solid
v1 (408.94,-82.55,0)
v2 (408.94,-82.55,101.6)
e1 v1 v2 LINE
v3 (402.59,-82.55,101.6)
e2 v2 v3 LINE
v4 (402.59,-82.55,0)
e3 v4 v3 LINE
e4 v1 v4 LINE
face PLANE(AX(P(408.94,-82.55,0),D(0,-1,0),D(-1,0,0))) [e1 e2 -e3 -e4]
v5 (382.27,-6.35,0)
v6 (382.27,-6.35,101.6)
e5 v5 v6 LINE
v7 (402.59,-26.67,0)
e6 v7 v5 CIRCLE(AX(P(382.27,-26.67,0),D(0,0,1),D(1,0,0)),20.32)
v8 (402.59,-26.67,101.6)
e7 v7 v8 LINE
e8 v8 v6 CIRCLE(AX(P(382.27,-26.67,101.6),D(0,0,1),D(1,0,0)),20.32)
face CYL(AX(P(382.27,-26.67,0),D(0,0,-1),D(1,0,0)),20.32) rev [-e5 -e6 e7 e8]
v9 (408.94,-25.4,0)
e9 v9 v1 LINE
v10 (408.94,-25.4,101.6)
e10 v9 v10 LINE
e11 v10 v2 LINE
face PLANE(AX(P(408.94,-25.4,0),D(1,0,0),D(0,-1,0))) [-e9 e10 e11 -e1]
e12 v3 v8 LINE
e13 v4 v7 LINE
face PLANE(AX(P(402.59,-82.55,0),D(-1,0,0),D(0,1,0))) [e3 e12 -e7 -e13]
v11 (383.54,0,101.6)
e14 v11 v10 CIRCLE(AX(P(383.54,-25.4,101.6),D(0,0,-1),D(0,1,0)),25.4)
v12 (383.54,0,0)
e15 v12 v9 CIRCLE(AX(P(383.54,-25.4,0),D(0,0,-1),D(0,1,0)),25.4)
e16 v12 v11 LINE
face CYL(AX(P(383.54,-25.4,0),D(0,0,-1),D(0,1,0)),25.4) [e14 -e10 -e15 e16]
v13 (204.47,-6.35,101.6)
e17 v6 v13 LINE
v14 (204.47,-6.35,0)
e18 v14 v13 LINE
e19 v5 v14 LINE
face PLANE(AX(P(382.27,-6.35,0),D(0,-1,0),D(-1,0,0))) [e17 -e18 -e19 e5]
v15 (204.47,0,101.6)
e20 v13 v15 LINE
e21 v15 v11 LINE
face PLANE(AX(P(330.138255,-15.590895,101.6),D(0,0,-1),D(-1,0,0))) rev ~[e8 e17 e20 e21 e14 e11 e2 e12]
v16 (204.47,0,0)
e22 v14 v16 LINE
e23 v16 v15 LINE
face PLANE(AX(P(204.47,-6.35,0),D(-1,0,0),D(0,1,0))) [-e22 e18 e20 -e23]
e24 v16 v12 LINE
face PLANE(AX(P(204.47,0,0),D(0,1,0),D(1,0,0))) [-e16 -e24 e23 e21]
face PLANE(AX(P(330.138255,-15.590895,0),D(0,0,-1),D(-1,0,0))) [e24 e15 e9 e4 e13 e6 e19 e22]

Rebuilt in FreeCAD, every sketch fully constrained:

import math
import FreeCAD as App
import Part
import Sketcher
from FreeCAD import Vector
Q = App.Units.Quantity

doc = App.newDocument("Part")
body = doc.addObject("PartDesign::Body", "Body")

sketch1 = doc.addObject("Sketcher::SketchObject", "Sketch")
body.addObject(sketch1)
sketch1.AttachmentSupport = (doc.XY_Plane, [""])
sketch1.MapMode = "FlatFace"
sketch1.addGeometry([
    Part.LineSegment(Vector(383.54, 0, 0), Vector(204.47, 0, 0)),
    Part.LineSegment(Vector(204.47, 0, 0), Vector(204.47, -6.35, 0)),
    Part.LineSegment(Vector(204.47, -6.35, 0), Vector(382.27, -6.35, 0)),
    Part.ArcOfCircle(Part.Circle(Vector(382.27, -26.67, 0), Vector(0, 0, 1), 20.32), math.radians(0), math.radians(90)),
    Part.LineSegment(Vector(402.59, -26.67, 0), Vector(402.59, -82.55, 0)),
    Part.LineSegment(Vector(402.59, -82.55, 0), Vector(408.94, -82.55, 0)),
    Part.LineSegment(Vector(408.94, -82.55, 0), Vector(408.94, -25.4, 0)),
    Part.ArcOfCircle(Part.Circle(Vector(383.54, -25.4, 0), Vector(0, 0, 1), 25.4), math.radians(0), math.radians(90)),
], False)
sketch1.addConstraint([
    Sketcher.Constraint("Coincident", 0, 2, 1, 1),
    Sketcher.Constraint("Coincident", 1, 2, 2, 1),
    Sketcher.Constraint("Tangent", 2, 2, 3, 2),
    Sketcher.Constraint("Tangent", 3, 1, 4, 1),
    Sketcher.Constraint("Coincident", 4, 2, 5, 1),
    Sketcher.Constraint("Coincident", 5, 2, 6, 1),
    Sketcher.Constraint("Tangent", 6, 2, 7, 1),
    Sketcher.Constraint("Tangent", 7, 2, 0, 1),
    Sketcher.Constraint("Horizontal", 0),
    Sketcher.Constraint("Vertical", 1),
    Sketcher.Constraint("Horizontal", 2),
    Sketcher.Constraint("Vertical", 4),
    Sketcher.Constraint("Horizontal", 5),
    Sketcher.Constraint("Vertical", 6),
    Sketcher.Constraint("PointOnObject", 0, 2, -1),
    Sketcher.Constraint("Equal", 5, 1),
    Sketcher.Constraint("Radius", 7, Q("1 in")),
    Sketcher.Constraint("Radius", 3, Q("0.8 in")),
    Sketcher.Constraint("DistanceX", 2, 1, 2, 2, Q("7 in")),
    Sketcher.Constraint("DistanceY", 4, 2, 4, 1, Q("2.2 in")),
    Sketcher.Constraint("DistanceX", 0, 2, 0, 1, Q("7.05 in")),
    Sketcher.Constraint("DistanceX", -1, 1, 7, 3, Q("15.1 in")),
])
pad1 = doc.addObject("PartDesign::Pad", "Pad")
body.addObject(pad1)
pad1.Profile = sketch1
pad1.Length = Q("4 in")

doc.recompute()
